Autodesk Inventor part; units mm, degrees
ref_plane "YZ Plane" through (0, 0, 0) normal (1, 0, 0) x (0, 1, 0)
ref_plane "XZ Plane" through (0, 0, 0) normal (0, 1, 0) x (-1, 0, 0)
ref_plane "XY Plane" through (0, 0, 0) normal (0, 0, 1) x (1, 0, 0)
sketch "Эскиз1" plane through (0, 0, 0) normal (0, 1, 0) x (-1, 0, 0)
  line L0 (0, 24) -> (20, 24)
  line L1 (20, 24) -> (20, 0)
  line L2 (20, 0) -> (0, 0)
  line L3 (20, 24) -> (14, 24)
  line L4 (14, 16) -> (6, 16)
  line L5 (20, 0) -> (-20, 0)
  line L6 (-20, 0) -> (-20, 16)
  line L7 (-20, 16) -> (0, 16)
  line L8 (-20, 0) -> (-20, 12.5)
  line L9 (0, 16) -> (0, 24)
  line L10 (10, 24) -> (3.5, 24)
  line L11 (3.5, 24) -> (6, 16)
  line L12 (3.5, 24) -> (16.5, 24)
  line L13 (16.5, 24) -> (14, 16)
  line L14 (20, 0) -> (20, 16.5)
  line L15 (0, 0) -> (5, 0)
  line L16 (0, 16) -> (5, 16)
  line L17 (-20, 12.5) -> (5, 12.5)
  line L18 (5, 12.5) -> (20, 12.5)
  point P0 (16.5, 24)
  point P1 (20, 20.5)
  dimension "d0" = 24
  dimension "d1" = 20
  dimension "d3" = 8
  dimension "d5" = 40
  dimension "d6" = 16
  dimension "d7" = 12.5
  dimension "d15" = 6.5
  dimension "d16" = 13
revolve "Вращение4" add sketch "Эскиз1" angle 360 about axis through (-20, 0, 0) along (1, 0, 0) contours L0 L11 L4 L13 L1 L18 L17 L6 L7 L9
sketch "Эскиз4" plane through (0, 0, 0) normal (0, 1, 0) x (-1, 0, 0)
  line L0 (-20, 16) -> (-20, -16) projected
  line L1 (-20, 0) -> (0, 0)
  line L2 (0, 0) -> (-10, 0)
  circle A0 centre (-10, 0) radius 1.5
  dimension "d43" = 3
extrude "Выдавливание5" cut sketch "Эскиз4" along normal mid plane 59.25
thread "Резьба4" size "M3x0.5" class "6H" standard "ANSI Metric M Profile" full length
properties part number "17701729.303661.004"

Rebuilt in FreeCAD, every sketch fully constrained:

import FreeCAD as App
import Part
import Sketcher


def add_polygon(sketch, points):
    """Adds a closed chain of lines whose ends are joined by coincident constraints."""
    first, n = sketch.GeometryCount, len(points)
    for a, b in zip(points, points[1:] + points[:1]):
        sketch.addGeometry(Part.LineSegment(App.Vector(*a, 0), App.Vector(*b, 0)), False)
    for i in range(n):
        sketch.addConstraint(Sketcher.Constraint("Coincident", first + i, 2, first + (i + 1) % n, 1))

doc = App.newDocument("Part")
body = doc.addObject("PartDesign::Body", "Body")

# Sketch on XZ plane
sketch1 = doc.addObject("Sketcher::SketchObject", "Sketch")
body.addObject(sketch1)
sketch1.AttachmentSupport = (doc.XZ_Plane, [""])
sketch1.MapMode = "FlatFace"
add_polygon(sketch1, [(-3.5, 24), (0, 24), (0, 16), (20, 16), (20, 12.5), (-20, 12.5), (-20, 24), (-16.5, 24), (-14, 16), (-6, 16)])  # lines 0-9
sketch1.addConstraint([
    Sketcher.Constraint("Horizontal", 0),
    Sketcher.Constraint("Vertical", 1),
    Sketcher.Constraint("Horizontal", 2),
    Sketcher.Constraint("Vertical", 3),
    Sketcher.Constraint("Horizontal", 4),
    Sketcher.Constraint("Vertical", 5),
    Sketcher.Constraint("Horizontal", 6),
    Sketcher.Constraint("Horizontal", 8),
    Sketcher.Constraint("PointOnObject", 0, 2, -2),
    Sketcher.Constraint("Horizontal", 0, 2, 5, 2),
    Sketcher.Constraint("Horizontal", 2, 2, 7, 2),
    Sketcher.Constraint("Equal", 0, 6),
    Sketcher.Constraint("Equal", 8, 1),
    Sketcher.Constraint("Equal", 6, 3),
    Sketcher.Constraint("Equal", 7, 9),
    Sketcher.Constraint("DistanceX", 2, 1, 2, 2, 20.0),
    Sketcher.Constraint("DistanceX", 4, 2, 4, 1, 40.0),
    Sketcher.Constraint("DistanceX", 8, 1, 8, 2, 8.0),
    Sketcher.Constraint("DistanceY", -1, 1, 0, 2, 24.0),
    Sketcher.Constraint("DistanceX", 6, 2, 9, 2, 13.0),
])
revolution = doc.addObject("PartDesign::Revolution", "Revolution")
body.addObject(revolution)
revolution.Profile = sketch1
revolution.ReferenceAxis = (sketch1, ["H_Axis"])
revolution.Angle = 360

# Sketch on XZ plane
sketch2 = doc.addObject("Sketcher::SketchObject", "Sketch001")
body.addObject(sketch2)
sketch2.AttachmentSupport = (doc.XZ_Plane, [""])
sketch2.MapMode = "FlatFace"
sketch2.addGeometry(Part.Circle(App.Vector(10, 0, 0), App.Vector(0, 0, 1), 1.5), False)
sketch2.addConstraint([
    Sketcher.Constraint("PointOnObject", 0, 3, -1),
    Sketcher.Constraint("Diameter", 0, 3.0),
    Sketcher.Constraint("DistanceX", -1, 1, 0, 3, 10.0),
])
pocket1 = doc.addObject("PartDesign::Pocket", "Pocket")
body.addObject(pocket1)
pocket1.Profile = sketch2
pocket1.Length = 59.25
pocket1.Midplane = True

doc.recompute()
